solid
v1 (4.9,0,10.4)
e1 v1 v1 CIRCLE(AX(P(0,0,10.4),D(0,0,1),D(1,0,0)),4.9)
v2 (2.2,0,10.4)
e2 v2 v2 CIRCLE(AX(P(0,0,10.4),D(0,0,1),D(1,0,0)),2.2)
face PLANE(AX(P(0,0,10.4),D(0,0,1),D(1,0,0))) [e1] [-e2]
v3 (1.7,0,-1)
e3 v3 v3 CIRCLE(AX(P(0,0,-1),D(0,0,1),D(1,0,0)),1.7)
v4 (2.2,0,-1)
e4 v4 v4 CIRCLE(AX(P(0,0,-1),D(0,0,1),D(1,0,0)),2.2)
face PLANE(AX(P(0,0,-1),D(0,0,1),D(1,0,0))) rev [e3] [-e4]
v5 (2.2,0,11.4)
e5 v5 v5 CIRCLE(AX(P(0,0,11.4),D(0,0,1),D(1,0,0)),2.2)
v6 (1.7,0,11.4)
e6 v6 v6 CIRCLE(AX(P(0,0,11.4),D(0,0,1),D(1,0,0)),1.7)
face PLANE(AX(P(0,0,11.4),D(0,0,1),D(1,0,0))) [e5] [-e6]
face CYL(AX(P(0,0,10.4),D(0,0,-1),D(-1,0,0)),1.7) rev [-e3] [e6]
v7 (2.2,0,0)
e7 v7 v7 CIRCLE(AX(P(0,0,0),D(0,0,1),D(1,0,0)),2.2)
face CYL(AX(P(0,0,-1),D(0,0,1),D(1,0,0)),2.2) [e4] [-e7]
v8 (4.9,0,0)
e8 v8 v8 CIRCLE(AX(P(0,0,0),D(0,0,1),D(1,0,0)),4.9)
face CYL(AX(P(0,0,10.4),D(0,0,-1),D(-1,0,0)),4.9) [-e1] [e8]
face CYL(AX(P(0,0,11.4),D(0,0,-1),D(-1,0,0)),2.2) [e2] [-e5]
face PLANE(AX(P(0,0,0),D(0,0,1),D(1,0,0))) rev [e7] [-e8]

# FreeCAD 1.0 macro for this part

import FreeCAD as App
import Part
import Sketcher
from FreeCAD import Vector

doc = App.newDocument("Part")
body = doc.addObject("PartDesign::Body", "Body")

# Sketch on XY plane
sketch1 = body.newObject("Sketcher::SketchObject", "Sketch")
sketch1.AttachmentSupport = (doc.getObject("XY_Plane"), [""])
sketch1.MapMode = "FlatFace"
sketch1.addGeometry(Part.Circle(Vector(0, 0, 0), Vector(0, 0, 1), 4.9), False)
sketch1.addGeometry(Part.Circle(Vector(0, 0, 0), Vector(0, 0, 1), 1.7), False)
sketch1.addConstraint(Sketcher.Constraint("Coincident", 0, 3, -1, 1))
sketch1.addConstraint(Sketcher.Constraint("Coincident", 1, 3, -1, 1))
sketch1.addConstraint(Sketcher.Constraint("Diameter", 0, 9.8))
sketch1.addConstraint(Sketcher.Constraint("Diameter", 1, 3.4))
pad1 = body.newObject("PartDesign::Pad", "Pad")
pad1.Profile = sketch1
pad1.Length = 10.4

# Sketch on XY plane
sketch2 = body.newObject("Sketcher::SketchObject", "Sketch001")
sketch2.AttachmentSupport = (doc.getObject("XY_Plane"), [""])
sketch2.MapMode = "FlatFace"
sketch2.AttachmentOffset = App.Placement(Vector(0, 0, 10.4), App.Rotation())
sketch2.addGeometry(Part.Circle(Vector(0, 0, 0), Vector(0, 0, 1), 2.2), False)
sketch2.addGeometry(Part.Circle(Vector(0, 0, 0), Vector(0, 0, 1), 1.7), False)
sketch2.addConstraint(Sketcher.Constraint("Coincident", 0, 3, -1, 1))
sketch2.addConstraint(Sketcher.Constraint("Coincident", 1, 3, -1, 1))
sketch2.addConstraint(Sketcher.Constraint("Diameter", 0, 4.4))
sketch2.addConstraint(Sketcher.Constraint("Diameter", 1, 3.4))
pad2 = body.newObject("PartDesign::Pad", "Pad001")
pad2.Profile = sketch2
pad2.Length = 1

# Sketch on XY plane
sketch3 = body.newObject("Sketcher::SketchObject", "Sketch002")
sketch3.AttachmentSupport = (doc.getObject("XY_Plane"), [""])
sketch3.MapMode = "FlatFace"
sketch3.AttachmentOffset = App.Placement(Vector(0, 0, -1), App.Rotation())
sketch3.addGeometry(Part.Circle(Vector(0, 0, 0), Vector(0, 0, 1), 2.2), False)
sketch3.addGeometry(Part.Circle(Vector(0, 0, 0), Vector(0, 0, 1), 1.7), False)
sketch3.addConstraint(Sketcher.Constraint("Coincident", 0, 3, -1, 1))
sketch3.addConstraint(Sketcher.Constraint("Coincident", 1, 3, -1, 1))
sketch3.addConstraint(Sketcher.Constraint("Diameter", 0, 4.4))
sketch3.addConstraint(Sketcher.Constraint("Diameter", 1, 3.4))
pad3 = body.newObject("PartDesign::Pad", "Pad002")
pad3.Profile = sketch3
pad3.Length = 1

doc.recompute()
